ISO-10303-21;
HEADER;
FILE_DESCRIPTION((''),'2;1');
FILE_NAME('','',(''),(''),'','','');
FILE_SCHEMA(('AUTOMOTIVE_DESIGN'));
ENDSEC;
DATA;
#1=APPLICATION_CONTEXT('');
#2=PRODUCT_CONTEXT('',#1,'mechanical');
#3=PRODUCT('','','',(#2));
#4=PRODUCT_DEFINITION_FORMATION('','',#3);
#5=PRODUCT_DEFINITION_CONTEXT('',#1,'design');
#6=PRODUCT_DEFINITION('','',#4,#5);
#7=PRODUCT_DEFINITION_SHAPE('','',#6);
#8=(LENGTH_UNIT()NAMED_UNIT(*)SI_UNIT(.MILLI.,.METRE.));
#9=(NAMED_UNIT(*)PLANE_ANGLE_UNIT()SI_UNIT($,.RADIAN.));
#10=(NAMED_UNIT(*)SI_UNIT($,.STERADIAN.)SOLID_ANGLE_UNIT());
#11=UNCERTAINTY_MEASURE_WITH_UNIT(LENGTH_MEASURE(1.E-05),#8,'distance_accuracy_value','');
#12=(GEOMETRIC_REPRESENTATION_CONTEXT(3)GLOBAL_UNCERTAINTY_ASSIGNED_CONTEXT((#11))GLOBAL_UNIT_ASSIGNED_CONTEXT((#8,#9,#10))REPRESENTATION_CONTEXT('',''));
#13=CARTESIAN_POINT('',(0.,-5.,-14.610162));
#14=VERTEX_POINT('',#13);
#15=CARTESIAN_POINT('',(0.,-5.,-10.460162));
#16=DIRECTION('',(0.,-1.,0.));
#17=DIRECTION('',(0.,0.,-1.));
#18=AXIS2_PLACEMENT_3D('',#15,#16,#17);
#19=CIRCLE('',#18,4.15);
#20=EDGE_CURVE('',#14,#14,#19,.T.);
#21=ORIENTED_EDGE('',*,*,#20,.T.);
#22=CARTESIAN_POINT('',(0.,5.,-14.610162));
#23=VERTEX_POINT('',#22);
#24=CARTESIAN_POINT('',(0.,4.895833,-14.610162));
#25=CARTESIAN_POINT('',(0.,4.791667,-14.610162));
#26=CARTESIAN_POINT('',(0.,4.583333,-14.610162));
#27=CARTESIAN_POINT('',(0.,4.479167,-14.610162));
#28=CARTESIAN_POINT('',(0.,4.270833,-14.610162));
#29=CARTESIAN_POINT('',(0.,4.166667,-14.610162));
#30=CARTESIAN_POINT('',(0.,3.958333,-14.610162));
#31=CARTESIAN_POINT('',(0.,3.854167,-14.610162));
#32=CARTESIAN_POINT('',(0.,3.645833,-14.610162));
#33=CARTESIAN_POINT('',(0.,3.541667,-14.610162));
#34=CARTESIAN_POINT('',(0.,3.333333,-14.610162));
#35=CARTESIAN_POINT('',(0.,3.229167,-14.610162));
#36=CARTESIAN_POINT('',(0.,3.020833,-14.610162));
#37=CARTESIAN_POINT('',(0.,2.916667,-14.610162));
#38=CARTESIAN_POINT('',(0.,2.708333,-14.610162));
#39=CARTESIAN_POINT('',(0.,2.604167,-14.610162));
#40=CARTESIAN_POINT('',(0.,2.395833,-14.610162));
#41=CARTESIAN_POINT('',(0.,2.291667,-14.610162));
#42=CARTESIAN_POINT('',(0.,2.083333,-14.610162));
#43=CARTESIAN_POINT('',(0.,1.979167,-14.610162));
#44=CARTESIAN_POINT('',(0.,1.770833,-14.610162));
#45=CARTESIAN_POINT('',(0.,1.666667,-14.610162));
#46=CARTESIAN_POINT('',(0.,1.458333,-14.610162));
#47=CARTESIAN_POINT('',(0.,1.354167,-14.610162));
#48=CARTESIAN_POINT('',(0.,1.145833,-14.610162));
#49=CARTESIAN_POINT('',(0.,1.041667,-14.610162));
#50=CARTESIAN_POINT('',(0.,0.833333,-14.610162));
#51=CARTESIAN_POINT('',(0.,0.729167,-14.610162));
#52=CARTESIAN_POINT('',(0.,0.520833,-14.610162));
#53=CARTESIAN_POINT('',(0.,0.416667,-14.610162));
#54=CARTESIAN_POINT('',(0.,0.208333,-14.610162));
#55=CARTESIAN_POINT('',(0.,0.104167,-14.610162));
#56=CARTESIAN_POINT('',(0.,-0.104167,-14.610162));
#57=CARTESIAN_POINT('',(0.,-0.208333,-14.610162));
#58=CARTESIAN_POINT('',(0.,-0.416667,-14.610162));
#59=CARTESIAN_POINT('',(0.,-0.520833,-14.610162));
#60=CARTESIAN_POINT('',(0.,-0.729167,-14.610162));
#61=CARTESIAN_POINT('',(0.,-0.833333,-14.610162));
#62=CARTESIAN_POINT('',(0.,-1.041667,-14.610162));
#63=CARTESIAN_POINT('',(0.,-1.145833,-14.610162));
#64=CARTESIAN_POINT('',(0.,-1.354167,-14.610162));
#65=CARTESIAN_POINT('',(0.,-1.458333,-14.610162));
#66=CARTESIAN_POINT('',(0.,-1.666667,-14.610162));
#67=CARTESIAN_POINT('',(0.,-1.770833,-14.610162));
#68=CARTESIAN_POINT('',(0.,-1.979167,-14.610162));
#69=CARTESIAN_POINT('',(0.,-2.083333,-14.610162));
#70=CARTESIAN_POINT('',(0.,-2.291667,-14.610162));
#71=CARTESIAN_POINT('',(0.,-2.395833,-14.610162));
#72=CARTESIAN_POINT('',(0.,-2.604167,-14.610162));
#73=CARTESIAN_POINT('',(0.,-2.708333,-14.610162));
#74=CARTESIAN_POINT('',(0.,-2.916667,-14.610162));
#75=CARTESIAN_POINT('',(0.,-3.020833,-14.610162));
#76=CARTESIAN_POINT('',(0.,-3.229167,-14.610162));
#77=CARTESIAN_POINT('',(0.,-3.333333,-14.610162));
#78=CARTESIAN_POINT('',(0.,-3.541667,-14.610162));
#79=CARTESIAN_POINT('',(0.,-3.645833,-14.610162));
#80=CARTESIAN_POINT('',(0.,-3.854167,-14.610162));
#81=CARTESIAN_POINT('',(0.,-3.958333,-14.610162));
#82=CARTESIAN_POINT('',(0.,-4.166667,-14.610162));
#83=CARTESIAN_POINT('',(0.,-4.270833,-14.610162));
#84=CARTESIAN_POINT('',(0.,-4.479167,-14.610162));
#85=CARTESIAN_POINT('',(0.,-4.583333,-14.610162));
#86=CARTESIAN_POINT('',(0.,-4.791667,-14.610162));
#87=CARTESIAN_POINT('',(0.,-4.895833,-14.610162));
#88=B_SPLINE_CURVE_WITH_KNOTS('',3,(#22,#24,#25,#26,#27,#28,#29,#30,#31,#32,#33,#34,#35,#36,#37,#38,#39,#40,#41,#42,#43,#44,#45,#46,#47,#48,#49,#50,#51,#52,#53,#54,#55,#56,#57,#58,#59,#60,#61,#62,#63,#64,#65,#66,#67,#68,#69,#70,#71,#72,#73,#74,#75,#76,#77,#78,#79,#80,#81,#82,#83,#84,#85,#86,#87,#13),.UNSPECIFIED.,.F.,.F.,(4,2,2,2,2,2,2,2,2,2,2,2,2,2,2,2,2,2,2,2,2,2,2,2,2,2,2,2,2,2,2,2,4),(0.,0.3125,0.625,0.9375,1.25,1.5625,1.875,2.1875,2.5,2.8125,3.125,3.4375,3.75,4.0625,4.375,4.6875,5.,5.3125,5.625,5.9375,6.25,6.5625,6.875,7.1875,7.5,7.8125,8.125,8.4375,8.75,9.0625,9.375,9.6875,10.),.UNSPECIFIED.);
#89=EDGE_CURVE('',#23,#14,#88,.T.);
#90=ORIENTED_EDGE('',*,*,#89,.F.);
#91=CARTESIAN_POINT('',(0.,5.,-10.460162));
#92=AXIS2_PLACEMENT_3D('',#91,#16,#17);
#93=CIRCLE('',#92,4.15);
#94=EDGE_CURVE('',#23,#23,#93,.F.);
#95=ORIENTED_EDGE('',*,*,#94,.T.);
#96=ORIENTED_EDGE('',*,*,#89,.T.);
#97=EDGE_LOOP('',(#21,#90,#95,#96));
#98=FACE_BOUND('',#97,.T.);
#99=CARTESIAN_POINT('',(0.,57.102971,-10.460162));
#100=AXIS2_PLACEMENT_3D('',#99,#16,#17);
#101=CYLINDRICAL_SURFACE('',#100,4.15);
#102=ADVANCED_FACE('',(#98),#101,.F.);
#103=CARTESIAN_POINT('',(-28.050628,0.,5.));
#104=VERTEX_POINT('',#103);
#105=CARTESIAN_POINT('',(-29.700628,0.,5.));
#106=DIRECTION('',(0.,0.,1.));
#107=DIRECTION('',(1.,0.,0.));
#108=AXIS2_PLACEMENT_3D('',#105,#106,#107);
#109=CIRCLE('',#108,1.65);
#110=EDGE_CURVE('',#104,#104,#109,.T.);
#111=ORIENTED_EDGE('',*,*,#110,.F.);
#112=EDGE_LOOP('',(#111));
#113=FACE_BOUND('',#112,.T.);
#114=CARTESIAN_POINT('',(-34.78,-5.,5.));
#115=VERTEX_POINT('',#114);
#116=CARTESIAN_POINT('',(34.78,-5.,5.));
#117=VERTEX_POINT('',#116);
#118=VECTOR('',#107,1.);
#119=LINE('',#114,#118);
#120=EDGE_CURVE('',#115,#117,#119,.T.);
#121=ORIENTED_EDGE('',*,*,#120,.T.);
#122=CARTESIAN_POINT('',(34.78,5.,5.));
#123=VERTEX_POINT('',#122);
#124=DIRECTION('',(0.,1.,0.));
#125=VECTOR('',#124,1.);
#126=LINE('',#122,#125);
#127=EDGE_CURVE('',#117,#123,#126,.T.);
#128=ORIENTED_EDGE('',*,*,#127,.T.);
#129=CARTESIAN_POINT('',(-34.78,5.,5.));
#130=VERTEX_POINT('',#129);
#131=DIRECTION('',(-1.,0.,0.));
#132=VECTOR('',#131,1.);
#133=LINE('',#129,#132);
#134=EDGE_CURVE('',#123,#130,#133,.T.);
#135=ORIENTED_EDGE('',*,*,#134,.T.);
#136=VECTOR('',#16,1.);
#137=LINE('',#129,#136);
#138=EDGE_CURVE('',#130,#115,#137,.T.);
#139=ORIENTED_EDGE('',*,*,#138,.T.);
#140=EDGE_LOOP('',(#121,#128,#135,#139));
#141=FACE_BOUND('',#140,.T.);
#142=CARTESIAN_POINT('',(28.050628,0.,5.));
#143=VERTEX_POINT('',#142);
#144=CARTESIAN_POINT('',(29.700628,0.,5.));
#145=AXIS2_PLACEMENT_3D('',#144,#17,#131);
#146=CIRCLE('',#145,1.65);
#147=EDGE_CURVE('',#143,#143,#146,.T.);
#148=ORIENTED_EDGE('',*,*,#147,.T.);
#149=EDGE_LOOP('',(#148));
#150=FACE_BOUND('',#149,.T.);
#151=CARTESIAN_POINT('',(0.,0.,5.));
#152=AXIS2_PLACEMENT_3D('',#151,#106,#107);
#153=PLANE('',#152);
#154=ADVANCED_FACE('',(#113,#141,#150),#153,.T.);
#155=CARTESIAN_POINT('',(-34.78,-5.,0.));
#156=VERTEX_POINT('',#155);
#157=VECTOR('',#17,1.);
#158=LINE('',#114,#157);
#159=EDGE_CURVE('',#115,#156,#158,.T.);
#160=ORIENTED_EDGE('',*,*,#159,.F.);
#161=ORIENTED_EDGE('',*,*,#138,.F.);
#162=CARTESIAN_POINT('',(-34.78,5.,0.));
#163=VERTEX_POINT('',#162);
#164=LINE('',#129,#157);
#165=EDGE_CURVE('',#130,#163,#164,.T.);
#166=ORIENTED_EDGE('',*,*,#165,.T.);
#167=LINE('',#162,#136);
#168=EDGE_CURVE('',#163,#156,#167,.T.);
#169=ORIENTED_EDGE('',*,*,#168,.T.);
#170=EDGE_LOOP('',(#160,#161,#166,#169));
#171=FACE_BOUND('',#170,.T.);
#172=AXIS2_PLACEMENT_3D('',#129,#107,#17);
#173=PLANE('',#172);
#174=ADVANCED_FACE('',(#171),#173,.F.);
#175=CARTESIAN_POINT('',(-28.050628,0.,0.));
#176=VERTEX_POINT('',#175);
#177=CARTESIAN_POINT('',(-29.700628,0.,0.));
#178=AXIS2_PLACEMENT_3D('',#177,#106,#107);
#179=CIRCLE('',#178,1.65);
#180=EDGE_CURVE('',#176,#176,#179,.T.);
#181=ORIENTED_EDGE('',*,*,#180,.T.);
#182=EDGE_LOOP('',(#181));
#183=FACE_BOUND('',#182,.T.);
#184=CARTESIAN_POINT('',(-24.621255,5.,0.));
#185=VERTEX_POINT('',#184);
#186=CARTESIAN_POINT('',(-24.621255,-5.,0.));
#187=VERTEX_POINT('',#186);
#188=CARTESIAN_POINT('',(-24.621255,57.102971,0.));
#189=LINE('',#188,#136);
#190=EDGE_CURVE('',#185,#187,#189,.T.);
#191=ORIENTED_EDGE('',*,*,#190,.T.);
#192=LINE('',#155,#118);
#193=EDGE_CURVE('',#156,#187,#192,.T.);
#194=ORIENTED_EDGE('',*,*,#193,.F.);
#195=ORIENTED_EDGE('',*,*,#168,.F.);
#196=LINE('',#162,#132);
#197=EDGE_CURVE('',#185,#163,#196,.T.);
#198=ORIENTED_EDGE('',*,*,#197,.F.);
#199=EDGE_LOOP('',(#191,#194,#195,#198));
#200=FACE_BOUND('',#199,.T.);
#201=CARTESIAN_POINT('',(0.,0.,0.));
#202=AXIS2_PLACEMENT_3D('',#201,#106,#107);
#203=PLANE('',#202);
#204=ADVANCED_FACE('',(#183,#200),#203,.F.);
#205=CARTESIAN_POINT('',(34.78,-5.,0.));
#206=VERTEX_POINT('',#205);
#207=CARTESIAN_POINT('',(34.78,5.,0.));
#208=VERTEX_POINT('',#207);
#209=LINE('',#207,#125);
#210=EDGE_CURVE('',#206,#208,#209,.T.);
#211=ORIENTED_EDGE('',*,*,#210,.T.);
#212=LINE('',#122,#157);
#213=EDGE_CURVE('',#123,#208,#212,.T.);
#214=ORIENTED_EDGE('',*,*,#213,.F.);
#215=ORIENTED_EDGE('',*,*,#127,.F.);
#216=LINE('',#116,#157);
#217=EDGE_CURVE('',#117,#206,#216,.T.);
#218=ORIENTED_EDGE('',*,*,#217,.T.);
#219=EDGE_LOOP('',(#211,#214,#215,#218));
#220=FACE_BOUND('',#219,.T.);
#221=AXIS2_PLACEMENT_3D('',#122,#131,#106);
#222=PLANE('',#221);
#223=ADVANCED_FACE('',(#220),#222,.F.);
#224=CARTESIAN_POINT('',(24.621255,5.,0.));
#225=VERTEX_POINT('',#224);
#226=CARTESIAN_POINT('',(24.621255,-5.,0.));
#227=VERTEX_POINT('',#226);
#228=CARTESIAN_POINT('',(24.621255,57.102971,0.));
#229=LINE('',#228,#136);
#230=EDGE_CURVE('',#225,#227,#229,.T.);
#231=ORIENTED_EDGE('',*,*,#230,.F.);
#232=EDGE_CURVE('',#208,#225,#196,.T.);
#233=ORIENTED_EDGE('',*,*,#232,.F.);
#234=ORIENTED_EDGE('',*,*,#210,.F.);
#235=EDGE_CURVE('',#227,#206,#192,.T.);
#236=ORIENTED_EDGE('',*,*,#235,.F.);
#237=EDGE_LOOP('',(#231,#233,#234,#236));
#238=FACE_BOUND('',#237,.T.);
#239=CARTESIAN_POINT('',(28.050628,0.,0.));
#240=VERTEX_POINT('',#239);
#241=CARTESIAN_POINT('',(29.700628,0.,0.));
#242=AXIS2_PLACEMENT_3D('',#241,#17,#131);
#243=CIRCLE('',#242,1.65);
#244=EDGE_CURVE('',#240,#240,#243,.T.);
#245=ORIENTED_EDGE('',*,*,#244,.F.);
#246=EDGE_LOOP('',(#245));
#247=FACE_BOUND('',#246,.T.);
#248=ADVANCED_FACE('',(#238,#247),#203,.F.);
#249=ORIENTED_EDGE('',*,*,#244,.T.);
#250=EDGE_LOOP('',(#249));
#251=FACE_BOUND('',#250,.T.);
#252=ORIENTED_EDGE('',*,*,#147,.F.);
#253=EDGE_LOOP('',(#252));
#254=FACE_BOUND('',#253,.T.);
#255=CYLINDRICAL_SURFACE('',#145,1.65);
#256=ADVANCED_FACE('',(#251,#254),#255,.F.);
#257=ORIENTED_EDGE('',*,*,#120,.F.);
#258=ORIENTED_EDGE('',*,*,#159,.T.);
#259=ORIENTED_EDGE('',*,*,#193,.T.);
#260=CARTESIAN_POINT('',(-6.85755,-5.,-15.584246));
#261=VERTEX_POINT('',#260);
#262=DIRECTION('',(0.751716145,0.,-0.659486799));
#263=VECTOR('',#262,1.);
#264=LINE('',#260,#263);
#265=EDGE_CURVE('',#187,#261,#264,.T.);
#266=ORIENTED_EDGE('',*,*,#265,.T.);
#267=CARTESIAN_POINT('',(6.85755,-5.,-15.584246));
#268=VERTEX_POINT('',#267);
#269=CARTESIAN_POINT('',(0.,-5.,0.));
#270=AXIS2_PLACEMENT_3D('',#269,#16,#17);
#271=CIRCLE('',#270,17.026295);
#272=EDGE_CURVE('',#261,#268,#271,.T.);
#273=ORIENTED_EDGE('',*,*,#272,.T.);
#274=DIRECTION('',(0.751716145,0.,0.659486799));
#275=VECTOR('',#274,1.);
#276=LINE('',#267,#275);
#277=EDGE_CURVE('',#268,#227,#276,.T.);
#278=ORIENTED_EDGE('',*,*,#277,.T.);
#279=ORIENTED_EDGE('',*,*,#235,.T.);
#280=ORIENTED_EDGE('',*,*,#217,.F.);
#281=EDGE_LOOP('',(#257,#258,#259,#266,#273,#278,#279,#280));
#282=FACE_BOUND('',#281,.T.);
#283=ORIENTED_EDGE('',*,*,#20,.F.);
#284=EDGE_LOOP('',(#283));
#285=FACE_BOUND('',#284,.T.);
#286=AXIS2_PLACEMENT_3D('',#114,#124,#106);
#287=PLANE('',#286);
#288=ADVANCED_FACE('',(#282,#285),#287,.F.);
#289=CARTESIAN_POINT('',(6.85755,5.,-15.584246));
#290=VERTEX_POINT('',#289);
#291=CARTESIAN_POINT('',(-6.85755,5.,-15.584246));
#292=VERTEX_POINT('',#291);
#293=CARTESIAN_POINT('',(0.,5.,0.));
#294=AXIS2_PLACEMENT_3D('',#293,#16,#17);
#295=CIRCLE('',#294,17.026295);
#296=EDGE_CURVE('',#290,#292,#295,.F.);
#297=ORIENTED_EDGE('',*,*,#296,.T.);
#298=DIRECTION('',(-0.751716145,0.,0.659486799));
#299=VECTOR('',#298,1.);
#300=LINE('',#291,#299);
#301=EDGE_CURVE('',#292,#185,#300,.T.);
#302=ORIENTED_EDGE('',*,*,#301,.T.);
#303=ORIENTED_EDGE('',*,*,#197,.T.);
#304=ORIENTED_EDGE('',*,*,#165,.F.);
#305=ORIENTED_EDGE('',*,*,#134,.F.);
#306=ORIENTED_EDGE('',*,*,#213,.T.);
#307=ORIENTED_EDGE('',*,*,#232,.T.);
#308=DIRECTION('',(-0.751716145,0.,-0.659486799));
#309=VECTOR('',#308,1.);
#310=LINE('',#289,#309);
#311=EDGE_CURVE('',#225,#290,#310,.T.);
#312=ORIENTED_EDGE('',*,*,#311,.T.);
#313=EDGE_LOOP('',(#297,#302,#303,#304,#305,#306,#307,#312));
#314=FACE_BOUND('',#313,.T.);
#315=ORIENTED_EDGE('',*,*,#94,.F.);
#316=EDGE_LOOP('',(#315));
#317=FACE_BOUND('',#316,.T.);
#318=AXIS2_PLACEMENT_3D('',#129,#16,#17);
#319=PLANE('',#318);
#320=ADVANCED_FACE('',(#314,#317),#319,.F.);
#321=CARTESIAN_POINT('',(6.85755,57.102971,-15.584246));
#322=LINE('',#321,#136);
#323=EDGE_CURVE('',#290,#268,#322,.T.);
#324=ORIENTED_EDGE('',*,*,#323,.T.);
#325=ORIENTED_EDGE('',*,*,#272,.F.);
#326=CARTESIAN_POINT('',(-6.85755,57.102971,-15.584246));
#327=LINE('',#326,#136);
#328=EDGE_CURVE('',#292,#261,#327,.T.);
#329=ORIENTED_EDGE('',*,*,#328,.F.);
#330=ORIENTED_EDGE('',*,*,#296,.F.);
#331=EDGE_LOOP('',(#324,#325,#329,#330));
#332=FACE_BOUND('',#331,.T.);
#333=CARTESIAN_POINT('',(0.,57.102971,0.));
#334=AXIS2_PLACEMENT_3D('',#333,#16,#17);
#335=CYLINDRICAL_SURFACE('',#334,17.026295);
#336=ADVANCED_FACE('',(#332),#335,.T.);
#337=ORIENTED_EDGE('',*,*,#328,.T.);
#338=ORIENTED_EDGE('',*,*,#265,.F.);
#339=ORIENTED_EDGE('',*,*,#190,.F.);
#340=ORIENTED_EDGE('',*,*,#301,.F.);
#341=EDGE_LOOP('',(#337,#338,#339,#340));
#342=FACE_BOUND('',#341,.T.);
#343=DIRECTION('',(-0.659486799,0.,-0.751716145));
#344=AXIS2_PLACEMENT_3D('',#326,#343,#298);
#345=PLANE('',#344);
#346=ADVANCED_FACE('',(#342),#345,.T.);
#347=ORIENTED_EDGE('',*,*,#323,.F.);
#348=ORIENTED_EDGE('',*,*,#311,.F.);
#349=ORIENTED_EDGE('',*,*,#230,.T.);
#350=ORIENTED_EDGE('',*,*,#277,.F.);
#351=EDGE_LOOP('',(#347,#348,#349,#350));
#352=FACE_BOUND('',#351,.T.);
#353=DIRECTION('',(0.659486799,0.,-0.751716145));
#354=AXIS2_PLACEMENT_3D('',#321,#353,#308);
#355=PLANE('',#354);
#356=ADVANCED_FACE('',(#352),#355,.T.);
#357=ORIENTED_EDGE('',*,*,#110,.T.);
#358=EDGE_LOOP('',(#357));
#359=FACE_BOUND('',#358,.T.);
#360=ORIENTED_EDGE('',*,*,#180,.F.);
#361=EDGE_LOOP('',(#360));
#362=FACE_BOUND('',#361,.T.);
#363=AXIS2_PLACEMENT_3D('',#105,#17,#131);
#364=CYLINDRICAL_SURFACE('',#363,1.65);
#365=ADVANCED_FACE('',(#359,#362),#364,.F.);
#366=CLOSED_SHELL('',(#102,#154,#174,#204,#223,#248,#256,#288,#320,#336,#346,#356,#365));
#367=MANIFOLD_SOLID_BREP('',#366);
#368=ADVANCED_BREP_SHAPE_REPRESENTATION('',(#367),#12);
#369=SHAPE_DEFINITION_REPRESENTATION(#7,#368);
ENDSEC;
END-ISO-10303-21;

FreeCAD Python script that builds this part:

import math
import FreeCAD as App
import Part
import Sketcher

V = App.Vector

doc = App.newDocument("Part")
body = doc.addObject("PartDesign::Body", "Body")

sketch1 = body.newObject("Sketcher::SketchObject", "Sketch")
sketch1.AttachmentSupport = (doc.getObject("XY_Plane"), [""])
sketch1.MapMode = "FlatFace"
sketch1.addGeometry([
    Part.LineSegment(V(-35, 5, 0), V(-35, -5, 0)),
    Part.LineSegment(V(-35, -5, 0), V(35, -5, 0)),
    Part.LineSegment(V(35, -5, 0), V(35, 5, 0)),
    Part.LineSegment(V(35, 5, 0), V(-35, 5, 0)),
], False)
sketch1.addConstraint([
    Sketcher.Constraint("Coincident", 0, 2, 1, 1),
    Sketcher.Constraint("Coincident", 1, 2, 2, 1),
    Sketcher.Constraint("Coincident", 2, 2, 3, 1),
    Sketcher.Constraint("Coincident", 3, 2, 0, 1),
    Sketcher.Constraint("Vertical", 0),
    Sketcher.Constraint("Horizontal", 1),
    Sketcher.Constraint("Vertical", 2),
    Sketcher.Constraint("Horizontal", 3),
    Sketcher.Constraint("Symmetric", 0, 2, 2, 2, -1, 1),
    Sketcher.Constraint("DistanceY", 0, 2, 0, 1, 10.0),
    Sketcher.Constraint("DistanceX", 1, 1, 1, 2, 69.56),
])
pad1 = body.newObject("PartDesign::Pad", "Pad")
pad1.Profile = sketch1
pad1.Length = 5

sketch2 = body.newObject("Sketcher::SketchObject", "Sketch001")
sketch2.AttachmentSupport = (doc.getObject("XZ_Plane"), [""])
sketch2.MapMode = "FlatFace"
sketch2.AttachmentOffset = App.Placement(V(0, 0, 5), App.Rotation())
sketch2.addGeometry([
    Part.LineSegment(V(24.6, 0, 0), V(-24.6, 0, 0)),
    Part.LineSegment(V(-24.6, 0, 0), V(-6.9, -15.6, 0)),
    Part.ArcOfCircle(Part.Circle(V(0, 0, 0), V(0, 0, 1), 17), math.radians(-114), math.radians(-66)),
    Part.LineSegment(V(6.9, -15.6, 0), V(24.6, 0, 0)),
    Part.Circle(V(0, -10.5, 0), V(0, 0, 1), 4.2),
], False)
sketch2.addConstraint([
    Sketcher.Constraint("Coincident", 0, 2, 1, 1),
    Sketcher.Constraint("Coincident", 1, 2, 2, 1),
    Sketcher.Constraint("Coincident", 2, 2, 3, 1),
    Sketcher.Constraint("Coincident", 3, 2, 0, 1),
    Sketcher.Constraint("Horizontal", 0),
    Sketcher.Constraint("Coincident", 2, 3, -1, 1),
    Sketcher.Constraint("Symmetric", 0, 2, 3, 2, -1, 1),
    Sketcher.Constraint("PointOnObject", 4, 3, -2),
    Sketcher.Constraint("Horizontal", 1, 2, 2, 2),
    Sketcher.Constraint("Diameter", 4, 8.3),
    Sketcher.Constraint("Radius", 2, 17.026295),
    Sketcher.Constraint("DistanceX", 0, 2, 0, 1, 49.242511),
    Sketcher.Constraint("DistanceX", 1, 2, 2, 2, 13.7151),
    Sketcher.Constraint("DistanceY", 4, 3, -1, 1, 10.460162),
])
pad2 = body.newObject("PartDesign::Pad", "Pad001")
pad2.Profile = sketch2
pad2.Length = 10
pad2.Reversed = True

sketch3 = body.newObject("Sketcher::SketchObject", "Sketch002")
sketch3.AttachmentSupport = (doc.getObject("XY_Plane"), [""])
sketch3.MapMode = "FlatFace"
sketch3.addGeometry(Part.Circle(V(29.7, 0, 0), V(0, 0, 1), 1.6), False)
sketch3.addConstraint([
    Sketcher.Constraint("PointOnObject", 0, 3, -1),
    Sketcher.Constraint("Diameter", 0, 3.3),
    Sketcher.Constraint("DistanceX", -1, 1, 0, 3, 29.700628),
])
pocket1 = body.newObject("PartDesign::Pocket", "Pocket")
pocket1.Profile = sketch3
pocket1.Length = 5
pocket1.Reversed = True
doc.recompute()

mirrored = body.newObject("PartDesign::Mirrored", "Mirrored")
mirrored.Originals = [pocket1]
mirrored.MirrorPlane = (doc.getObject("YZ_Plane"), [""])
body.Tip = mirrored

doc.recompute()
